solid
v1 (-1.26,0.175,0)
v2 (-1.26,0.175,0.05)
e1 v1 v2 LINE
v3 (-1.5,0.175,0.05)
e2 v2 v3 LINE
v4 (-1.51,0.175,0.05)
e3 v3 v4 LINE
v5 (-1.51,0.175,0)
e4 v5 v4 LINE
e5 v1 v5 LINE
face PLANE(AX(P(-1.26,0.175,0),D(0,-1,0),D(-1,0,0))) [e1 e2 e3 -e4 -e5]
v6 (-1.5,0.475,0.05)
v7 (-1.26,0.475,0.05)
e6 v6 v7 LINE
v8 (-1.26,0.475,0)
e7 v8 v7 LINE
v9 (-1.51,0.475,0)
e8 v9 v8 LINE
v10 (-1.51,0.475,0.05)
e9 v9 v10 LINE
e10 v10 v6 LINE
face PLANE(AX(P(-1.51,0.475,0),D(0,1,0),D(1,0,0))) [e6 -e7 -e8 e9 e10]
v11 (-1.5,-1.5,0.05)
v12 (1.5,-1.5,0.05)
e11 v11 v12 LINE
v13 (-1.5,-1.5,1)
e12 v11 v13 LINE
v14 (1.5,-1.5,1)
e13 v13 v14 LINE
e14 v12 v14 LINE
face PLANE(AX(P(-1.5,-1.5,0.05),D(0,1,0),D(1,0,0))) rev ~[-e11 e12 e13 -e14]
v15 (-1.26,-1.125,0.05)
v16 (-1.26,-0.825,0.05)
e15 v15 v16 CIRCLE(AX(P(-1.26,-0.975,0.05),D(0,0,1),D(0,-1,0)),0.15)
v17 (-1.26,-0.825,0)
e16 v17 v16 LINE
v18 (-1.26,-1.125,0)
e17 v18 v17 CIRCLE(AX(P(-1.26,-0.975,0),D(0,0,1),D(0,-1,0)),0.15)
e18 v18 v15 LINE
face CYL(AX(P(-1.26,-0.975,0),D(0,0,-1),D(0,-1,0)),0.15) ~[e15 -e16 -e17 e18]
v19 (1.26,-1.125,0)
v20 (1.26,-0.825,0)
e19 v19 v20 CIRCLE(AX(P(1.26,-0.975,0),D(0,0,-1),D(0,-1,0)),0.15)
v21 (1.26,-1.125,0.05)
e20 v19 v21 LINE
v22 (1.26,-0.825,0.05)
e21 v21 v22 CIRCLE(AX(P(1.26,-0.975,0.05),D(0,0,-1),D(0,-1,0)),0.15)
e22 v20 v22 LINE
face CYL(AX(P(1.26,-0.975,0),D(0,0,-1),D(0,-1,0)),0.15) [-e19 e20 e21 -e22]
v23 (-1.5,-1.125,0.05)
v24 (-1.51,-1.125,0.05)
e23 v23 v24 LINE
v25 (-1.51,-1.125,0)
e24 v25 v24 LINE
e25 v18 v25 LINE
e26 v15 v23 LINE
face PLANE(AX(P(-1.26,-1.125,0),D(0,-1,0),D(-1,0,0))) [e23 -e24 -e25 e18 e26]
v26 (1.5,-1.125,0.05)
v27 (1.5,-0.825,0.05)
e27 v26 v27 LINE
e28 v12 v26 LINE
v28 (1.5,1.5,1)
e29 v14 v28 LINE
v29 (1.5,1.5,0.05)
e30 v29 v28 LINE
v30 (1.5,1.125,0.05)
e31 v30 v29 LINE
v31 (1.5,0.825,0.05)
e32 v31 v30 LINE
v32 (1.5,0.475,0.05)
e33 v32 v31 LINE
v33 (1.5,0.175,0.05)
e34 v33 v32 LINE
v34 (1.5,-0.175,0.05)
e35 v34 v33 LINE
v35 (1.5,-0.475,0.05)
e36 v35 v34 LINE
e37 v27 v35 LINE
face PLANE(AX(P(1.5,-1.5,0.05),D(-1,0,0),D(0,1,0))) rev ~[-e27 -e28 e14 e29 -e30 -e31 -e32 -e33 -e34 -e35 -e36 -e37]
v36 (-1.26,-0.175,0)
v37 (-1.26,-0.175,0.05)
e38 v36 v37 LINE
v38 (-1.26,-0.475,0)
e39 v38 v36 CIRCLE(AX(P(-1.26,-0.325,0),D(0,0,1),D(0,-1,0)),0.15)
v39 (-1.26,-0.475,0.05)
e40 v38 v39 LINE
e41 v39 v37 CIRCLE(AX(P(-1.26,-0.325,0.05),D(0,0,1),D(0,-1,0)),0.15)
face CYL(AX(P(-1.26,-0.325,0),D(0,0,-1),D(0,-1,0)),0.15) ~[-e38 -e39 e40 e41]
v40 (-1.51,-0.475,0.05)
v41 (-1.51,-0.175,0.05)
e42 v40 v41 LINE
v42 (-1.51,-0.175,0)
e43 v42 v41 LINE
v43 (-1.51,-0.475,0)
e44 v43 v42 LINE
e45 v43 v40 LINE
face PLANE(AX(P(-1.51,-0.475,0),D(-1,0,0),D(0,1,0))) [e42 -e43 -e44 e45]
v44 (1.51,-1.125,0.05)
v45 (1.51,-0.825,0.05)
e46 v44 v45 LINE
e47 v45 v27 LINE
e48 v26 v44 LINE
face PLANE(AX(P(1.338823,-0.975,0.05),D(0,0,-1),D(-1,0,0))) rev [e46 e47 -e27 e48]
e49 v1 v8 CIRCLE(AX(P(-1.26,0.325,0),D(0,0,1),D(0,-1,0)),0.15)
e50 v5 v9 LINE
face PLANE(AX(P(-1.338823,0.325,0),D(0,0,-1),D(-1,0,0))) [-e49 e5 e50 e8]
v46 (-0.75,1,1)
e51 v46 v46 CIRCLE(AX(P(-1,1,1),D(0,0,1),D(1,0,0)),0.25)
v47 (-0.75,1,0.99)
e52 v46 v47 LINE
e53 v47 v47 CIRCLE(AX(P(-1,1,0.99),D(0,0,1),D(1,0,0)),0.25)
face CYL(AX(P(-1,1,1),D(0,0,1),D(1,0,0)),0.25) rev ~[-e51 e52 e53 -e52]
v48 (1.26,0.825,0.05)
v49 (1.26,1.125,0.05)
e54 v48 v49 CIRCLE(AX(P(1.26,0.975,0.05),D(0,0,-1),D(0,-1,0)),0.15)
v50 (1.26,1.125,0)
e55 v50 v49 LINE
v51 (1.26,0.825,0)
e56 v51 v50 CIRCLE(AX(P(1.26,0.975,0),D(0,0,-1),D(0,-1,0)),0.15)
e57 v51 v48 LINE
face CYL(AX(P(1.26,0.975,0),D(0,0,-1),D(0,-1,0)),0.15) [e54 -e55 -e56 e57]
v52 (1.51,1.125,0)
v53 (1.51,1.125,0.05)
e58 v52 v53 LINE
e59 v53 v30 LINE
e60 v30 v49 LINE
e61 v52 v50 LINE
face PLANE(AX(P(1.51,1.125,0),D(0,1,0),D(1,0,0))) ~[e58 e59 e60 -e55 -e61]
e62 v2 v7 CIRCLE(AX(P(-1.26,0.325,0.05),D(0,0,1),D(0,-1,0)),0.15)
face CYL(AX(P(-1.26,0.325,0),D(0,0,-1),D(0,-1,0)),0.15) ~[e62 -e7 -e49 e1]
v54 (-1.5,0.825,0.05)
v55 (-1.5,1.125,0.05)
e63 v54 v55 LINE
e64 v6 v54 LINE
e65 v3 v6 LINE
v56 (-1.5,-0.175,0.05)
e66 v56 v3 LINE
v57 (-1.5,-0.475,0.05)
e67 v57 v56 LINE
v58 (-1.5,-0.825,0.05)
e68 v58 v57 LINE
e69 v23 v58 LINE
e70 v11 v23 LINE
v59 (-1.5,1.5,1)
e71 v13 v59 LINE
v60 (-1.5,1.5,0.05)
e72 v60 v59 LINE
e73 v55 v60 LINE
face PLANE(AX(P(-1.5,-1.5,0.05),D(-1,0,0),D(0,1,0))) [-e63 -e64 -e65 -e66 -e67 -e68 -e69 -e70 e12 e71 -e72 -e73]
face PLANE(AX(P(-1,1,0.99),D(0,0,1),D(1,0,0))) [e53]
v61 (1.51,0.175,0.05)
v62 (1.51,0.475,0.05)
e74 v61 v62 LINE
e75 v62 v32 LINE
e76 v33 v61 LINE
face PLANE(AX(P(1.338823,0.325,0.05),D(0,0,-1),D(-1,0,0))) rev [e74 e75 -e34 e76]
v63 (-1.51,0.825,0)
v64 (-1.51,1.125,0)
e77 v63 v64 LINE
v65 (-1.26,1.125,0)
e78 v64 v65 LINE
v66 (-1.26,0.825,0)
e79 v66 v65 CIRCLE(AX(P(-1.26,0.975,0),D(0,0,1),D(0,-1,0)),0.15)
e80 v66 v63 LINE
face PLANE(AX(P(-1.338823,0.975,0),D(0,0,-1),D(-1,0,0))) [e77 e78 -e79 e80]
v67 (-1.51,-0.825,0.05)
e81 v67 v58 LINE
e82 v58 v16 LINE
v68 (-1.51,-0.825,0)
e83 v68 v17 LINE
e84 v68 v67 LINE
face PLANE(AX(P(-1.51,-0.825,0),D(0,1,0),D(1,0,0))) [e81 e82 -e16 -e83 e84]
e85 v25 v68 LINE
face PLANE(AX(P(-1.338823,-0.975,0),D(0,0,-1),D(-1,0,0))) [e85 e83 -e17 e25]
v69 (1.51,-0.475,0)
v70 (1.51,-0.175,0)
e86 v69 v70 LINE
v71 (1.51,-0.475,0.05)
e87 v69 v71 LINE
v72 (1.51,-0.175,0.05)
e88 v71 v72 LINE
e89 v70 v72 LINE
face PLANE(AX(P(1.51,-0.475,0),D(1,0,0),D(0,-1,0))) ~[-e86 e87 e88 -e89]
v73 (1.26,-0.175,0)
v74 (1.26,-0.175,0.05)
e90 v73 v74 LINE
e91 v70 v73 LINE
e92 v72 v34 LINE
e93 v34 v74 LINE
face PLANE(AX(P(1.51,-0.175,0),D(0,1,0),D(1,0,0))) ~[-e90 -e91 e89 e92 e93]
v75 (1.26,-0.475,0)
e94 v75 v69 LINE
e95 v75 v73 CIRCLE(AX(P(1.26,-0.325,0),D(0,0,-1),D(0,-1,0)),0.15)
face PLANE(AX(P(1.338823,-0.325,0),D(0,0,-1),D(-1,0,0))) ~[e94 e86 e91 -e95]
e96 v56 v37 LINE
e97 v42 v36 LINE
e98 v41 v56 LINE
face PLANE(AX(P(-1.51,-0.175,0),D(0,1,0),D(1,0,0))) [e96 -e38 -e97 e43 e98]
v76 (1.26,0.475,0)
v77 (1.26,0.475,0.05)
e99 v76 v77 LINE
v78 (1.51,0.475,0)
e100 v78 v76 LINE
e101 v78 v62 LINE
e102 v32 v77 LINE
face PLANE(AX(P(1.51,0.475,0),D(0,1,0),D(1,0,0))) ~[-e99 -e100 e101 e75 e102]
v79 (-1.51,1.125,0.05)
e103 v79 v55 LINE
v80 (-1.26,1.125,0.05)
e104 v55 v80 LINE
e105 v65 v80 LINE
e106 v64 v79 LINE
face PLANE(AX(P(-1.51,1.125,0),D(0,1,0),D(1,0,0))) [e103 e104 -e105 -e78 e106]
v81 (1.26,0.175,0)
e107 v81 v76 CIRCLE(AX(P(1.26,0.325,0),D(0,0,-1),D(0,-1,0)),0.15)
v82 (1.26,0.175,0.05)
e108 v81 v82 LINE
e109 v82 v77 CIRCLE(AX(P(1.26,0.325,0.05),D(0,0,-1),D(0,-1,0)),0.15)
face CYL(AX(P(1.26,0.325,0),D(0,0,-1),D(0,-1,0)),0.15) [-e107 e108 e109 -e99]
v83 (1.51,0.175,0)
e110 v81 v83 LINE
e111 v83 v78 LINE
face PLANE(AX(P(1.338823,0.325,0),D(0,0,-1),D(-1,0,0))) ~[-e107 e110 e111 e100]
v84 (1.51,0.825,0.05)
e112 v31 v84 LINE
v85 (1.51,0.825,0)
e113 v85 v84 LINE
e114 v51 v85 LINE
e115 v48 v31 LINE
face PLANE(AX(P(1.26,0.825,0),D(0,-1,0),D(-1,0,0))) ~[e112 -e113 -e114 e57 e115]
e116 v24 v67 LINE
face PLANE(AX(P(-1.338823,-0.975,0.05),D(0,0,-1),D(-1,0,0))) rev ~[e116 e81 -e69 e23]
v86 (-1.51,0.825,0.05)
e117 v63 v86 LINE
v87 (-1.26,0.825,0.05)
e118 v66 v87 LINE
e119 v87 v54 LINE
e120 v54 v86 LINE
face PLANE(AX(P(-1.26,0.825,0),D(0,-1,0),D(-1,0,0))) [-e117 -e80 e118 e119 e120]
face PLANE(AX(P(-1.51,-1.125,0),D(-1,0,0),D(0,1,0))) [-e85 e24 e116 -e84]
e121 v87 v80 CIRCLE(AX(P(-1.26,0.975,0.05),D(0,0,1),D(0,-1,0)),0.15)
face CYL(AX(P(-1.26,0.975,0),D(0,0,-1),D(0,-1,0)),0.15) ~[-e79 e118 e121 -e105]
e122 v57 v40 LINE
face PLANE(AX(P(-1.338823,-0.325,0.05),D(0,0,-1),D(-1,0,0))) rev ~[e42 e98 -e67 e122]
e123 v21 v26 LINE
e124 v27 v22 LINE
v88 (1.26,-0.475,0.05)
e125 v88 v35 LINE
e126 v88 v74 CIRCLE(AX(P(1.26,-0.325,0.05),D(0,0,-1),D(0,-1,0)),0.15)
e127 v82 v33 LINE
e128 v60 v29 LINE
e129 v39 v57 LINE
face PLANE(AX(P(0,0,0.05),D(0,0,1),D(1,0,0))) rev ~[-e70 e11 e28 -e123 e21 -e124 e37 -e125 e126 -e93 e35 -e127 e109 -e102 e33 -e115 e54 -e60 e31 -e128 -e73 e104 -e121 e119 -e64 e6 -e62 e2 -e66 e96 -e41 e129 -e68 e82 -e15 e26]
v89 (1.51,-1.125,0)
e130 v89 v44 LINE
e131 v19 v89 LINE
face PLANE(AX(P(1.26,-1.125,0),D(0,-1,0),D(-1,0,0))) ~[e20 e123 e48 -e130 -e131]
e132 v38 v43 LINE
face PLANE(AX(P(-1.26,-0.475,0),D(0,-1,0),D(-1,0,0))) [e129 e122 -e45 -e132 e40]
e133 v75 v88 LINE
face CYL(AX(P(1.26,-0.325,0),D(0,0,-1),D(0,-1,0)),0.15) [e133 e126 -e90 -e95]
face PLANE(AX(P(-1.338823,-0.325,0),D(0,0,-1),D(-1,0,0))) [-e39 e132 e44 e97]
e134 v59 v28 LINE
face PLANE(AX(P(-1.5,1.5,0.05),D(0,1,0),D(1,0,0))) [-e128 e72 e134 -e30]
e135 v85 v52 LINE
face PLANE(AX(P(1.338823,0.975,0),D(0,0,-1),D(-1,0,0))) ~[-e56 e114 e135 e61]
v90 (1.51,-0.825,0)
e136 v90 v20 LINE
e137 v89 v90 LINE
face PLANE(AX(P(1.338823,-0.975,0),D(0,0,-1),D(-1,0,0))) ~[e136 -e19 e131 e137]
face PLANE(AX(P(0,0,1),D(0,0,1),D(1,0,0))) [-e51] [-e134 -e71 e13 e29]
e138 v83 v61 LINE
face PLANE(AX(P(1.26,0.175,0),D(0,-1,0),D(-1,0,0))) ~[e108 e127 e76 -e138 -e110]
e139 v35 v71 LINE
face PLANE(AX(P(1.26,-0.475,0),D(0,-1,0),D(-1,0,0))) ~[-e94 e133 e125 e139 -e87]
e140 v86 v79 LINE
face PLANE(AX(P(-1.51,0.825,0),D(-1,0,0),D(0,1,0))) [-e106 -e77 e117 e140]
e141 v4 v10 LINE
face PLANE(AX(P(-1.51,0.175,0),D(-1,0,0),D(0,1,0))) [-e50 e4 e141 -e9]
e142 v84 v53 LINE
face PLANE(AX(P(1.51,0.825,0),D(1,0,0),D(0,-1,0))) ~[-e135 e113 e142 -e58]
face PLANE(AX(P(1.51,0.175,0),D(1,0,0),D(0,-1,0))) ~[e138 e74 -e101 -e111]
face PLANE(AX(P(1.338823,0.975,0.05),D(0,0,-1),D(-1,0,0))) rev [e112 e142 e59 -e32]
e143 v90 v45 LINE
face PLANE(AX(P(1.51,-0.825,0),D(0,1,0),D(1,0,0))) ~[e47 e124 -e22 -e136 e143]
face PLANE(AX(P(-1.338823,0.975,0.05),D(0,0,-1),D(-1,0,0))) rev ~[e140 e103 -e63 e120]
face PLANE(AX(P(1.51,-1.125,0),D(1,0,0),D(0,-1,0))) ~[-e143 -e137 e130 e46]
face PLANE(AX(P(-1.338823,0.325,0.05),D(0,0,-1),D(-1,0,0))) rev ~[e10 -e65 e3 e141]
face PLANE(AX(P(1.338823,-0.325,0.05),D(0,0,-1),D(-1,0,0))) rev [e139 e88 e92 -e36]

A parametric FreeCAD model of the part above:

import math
import FreeCAD as App
import Part
import Sketcher

V = App.Vector
Q = App.Units.Quantity


def add_polygon(sketch, points):
    """Adds a closed chain of lines whose ends are joined by coincident constraints."""
    first, n = sketch.GeometryCount, len(points)
    for a, b in zip(points, points[1:] + points[:1]):
        sketch.addGeometry(Part.LineSegment(App.Vector(*a, 0), App.Vector(*b, 0)), False)
    for i in range(n):
        sketch.addConstraint(Sketcher.Constraint("Coincident", first + i, 2, first + (i + 1) % n, 1))

doc = App.newDocument("Part")
body = doc.addObject("PartDesign::Body", "Body")

sketch1 = body.newObject("Sketcher::SketchObject", "Sketch")
sketch1.AttachmentSupport = (doc.getObject("XY_Plane"), [""])
sketch1.MapMode = "FlatFace"
sketch1.addGeometry(Part.LineSegment(V(-1.26, 1.12, 0), V(-1.51, 1.12, 0)), False)
sketch1.addGeometry(Part.LineSegment(V(-1.51, 1.12, 0), V(-1.51, 0.82, 0)), False)
sketch1.addGeometry(Part.LineSegment(V(-1.51, 0.82, 0), V(-1.26, 0.82, 0)), False)
sketch1.addGeometry(Part.ArcOfCircle(Part.Circle(V(-1.26, 0.97, 0), V(0, 0, 1), 0.15), math.radians(-90), math.radians(90)), False)
sketch1.addConstraint(Sketcher.Constraint("Coincident", 0, 2, 1, 1))
sketch1.addConstraint(Sketcher.Constraint("Coincident", 1, 2, 2, 1))
sketch1.addConstraint(Sketcher.Constraint("Tangent", 2, 2, 3, 1))
sketch1.addConstraint(Sketcher.Constraint("Tangent", 3, 2, 0, 1))
sketch1.addConstraint(Sketcher.Constraint("Horizontal", 0))
sketch1.addConstraint(Sketcher.Constraint("Vertical", 1))
sketch1.addConstraint(Sketcher.Constraint("Horizontal", 2))
sketch1.addConstraint(Sketcher.Constraint("Radius", 3, Q("0.15 mm")))
sketch1.addConstraint(Sketcher.Constraint("DistanceX", 0, 2, 0, 1, Q("0.25 mm")))
sketch1.addConstraint(Sketcher.Constraint("DistanceX", 3, 3, -1, 1, Q("1.26 mm")))
sketch1.addConstraint(Sketcher.Constraint("DistanceY", -1, 1, 3, 3, Q("0.975 mm")))
pad1 = body.newObject("PartDesign::Pad", "Pad")
pad1.Profile = sketch1
pad1.Length = 0.05

sketch2 = body.newObject("Sketcher::SketchObject", "Sketch001")
sketch2.AttachmentSupport = (doc.getObject("XY_Plane"), [""])
sketch2.MapMode = "FlatFace"
sketch2.AttachmentOffset = App.Placement(V(0, 0, 0.05), App.Rotation())
add_polygon(sketch2, [(-1.5, 1.5), (-1.5, -1.5), (1.5, -1.5), (1.5, 1.5)])
sketch2.addConstraint(Sketcher.Constraint("Vertical", 0))
sketch2.addConstraint(Sketcher.Constraint("Horizontal", 1))
sketch2.addConstraint(Sketcher.Constraint("Vertical", 2))
sketch2.addConstraint(Sketcher.Constraint("Horizontal", 3))
sketch2.addConstraint(Sketcher.Constraint("Symmetric", 0, 2, 2, 2, -1, 1))
sketch2.addConstraint(Sketcher.Constraint("Equal", 3, 0))
sketch2.addConstraint(Sketcher.Constraint("DistanceX", 1, 1, 1, 2, Q("3 mm")))
pad2 = body.newObject("PartDesign::Pad", "Pad001")
pad2.Profile = sketch2
pad2.Length = 0.95

sketch3 = body.newObject("Sketcher::SketchObject", "Sketch002")
sketch3.AttachmentSupport = (doc.getObject("XY_Plane"), [""])
sketch3.MapMode = "FlatFace"
sketch3.addGeometry(Part.LineSegment(V(-1.26, 0.47, 0), V(-1.51, 0.47, 0)), False)
sketch3.addGeometry(Part.LineSegment(V(-1.51, 0.47, 0), V(-1.51, 0.17, 0)), False)
sketch3.addGeometry(Part.LineSegment(V(-1.51, 0.17, 0), V(-1.26, 0.17, 0)), False)
sketch3.addGeometry(Part.ArcOfCircle(Part.Circle(V(-1.26, 0.33, 0), V(0, 0, 1), 0.15), math.radians(-90), math.radians(90)), False)
sketch3.addConstraint(Sketcher.Constraint("Coincident", 0, 2, 1, 1))
sketch3.addConstraint(Sketcher.Constraint("Coincident", 1, 2, 2, 1))
sketch3.addConstraint(Sketcher.Constraint("Tangent", 2, 2, 3, 1))
sketch3.addConstraint(Sketcher.Constraint("Tangent", 3, 2, 0, 1))
sketch3.addConstraint(Sketcher.Constraint("Horizontal", 0))
sketch3.addConstraint(Sketcher.Constraint("Vertical", 1))
sketch3.addConstraint(Sketcher.Constraint("Horizontal", 2))
sketch3.addConstraint(Sketcher.Constraint("Radius", 3, Q("0.15 mm")))
sketch3.addConstraint(Sketcher.Constraint("DistanceX", 0, 2, 0, 1, Q("0.25 mm")))
sketch3.addConstraint(Sketcher.Constraint("DistanceX", 3, 3, -1, 1, Q("1.26 mm")))
sketch3.addConstraint(Sketcher.Constraint("DistanceY", -1, 1, 3, 3, Q("0.325 mm")))
pad3 = body.newObject("PartDesign::Pad", "Pad002")
pad3.Profile = sketch3
pad3.Length = 0.05

sketch4 = body.newObject("Sketcher::SketchObject", "Sketch003")
sketch4.AttachmentSupport = (doc.getObject("XY_Plane"), [""])
sketch4.MapMode = "FlatFace"
sketch4.addGeometry(Part.LineSegment(V(-1.26, -0.17, 0), V(-1.51, -0.17, 0)), False)
sketch4.addGeometry(Part.LineSegment(V(-1.51, -0.17, 0), V(-1.51, -0.47, 0)), False)
sketch4.addGeometry(Part.LineSegment(V(-1.51, -0.47, 0), V(-1.26, -0.47, 0)), False)
sketch4.addGeometry(Part.ArcOfCircle(Part.Circle(V(-1.26, -0.33, 0), V(0, 0, 1), 0.15), math.radians(-90), math.radians(90)), False)
sketch4.addConstraint(Sketcher.Constraint("Coincident", 0, 2, 1, 1))
sketch4.addConstraint(Sketcher.Constraint("Coincident", 1, 2, 2, 1))
sketch4.addConstraint(Sketcher.Constraint("Tangent", 2, 2, 3, 1))
sketch4.addConstraint(Sketcher.Constraint("Tangent", 3, 2, 0, 1))
sketch4.addConstraint(Sketcher.Constraint("Horizontal", 0))
sketch4.addConstraint(Sketcher.Constraint("Vertical", 1))
sketch4.addConstraint(Sketcher.Constraint("Horizontal", 2))
sketch4.addConstraint(Sketcher.Constraint("Radius", 3, Q("0.15 mm")))
sketch4.addConstraint(Sketcher.Constraint("DistanceX", 0, 2, 0, 1, Q("0.25 mm")))
sketch4.addConstraint(Sketcher.Constraint("DistanceX", 3, 3, -1, 1, Q("1.26 mm")))
sketch4.addConstraint(Sketcher.Constraint("DistanceY", 3, 3, -1, 1, Q("0.325 mm")))
pad4 = body.newObject("PartDesign::Pad", "Pad003")
pad4.Profile = sketch4
pad4.Length = 0.05

sketch5 = body.newObject("Sketcher::SketchObject", "Sketch004")
sketch5.AttachmentSupport = (doc.getObject("XY_Plane"), [""])
sketch5.MapMode = "FlatFace"
sketch5.addGeometry(Part.LineSegment(V(-1.26, -0.82, 0), V(-1.51, -0.82, 0)), False)
sketch5.addGeometry(Part.LineSegment(V(-1.51, -0.82, 0), V(-1.51, -1.12, 0)), False)
sketch5.addGeometry(Part.LineSegment(V(-1.51, -1.12, 0), V(-1.26, -1.12, 0)), False)
sketch5.addGeometry(Part.ArcOfCircle(Part.Circle(V(-1.26, -0.97, 0), V(0, 0, 1), 0.15), math.radians(-90), math.radians(90)), False)
sketch5.addConstraint(Sketcher.Constraint("Coincident", 0, 2, 1, 1))
sketch5.addConstraint(Sketcher.Constraint("Coincident", 1, 2, 2, 1))
sketch5.addConstraint(Sketcher.Constraint("Tangent", 2, 2, 3, 1))
sketch5.addConstraint(Sketcher.Constraint("Tangent", 3, 2, 0, 1))
sketch5.addConstraint(Sketcher.Constraint("Horizontal", 0))
sketch5.addConstraint(Sketcher.Constraint("Vertical", 1))
sketch5.addConstraint(Sketcher.Constraint("Horizontal", 2))
sketch5.addConstraint(Sketcher.Constraint("Radius", 3, Q("0.15 mm")))
sketch5.addConstraint(Sketcher.Constraint("DistanceX", 0, 2, 0, 1, Q("0.25 mm")))
sketch5.addConstraint(Sketcher.Constraint("DistanceX", 3, 3, -1, 1, Q("1.26 mm")))
sketch5.addConstraint(Sketcher.Constraint("DistanceY", 3, 3, -1, 1, Q("0.975 mm")))
pad5 = body.newObject("PartDesign::Pad", "Pad004")
pad5.Profile = sketch5
pad5.Length = 0.05
doc.recompute()

mirrored = body.newObject("PartDesign::Mirrored", "Mirrored")
mirrored.Originals = [pad1, pad3, pad4, pad5]
mirrored.MirrorPlane = (doc.getObject("YZ_Plane"), [""])
body.Tip = mirrored

sketch6 = body.newObject("Sketcher::SketchObject", "Sketch005")
sketch6.AttachmentSupport = (doc.getObject("XY_Plane"), [""])
sketch6.MapMode = "FlatFace"
sketch6.AttachmentOffset = App.Placement(V(0, 0, 1), App.Rotation())
sketch6.addGeometry(Part.Circle(V(-1, 1, 0), V(0, 0, 1), 0.25), False)
sketch6.addConstraint(Sketcher.Constraint("Diameter", 0, Q("0.5 mm")))
sketch6.addConstraint(Sketcher.Constraint("DistanceX", 0, 3, -1, 1, Q("1 mm")))
sketch6.addConstraint(Sketcher.Constraint("DistanceY", -1, 1, 0, 3, Q("1 mm")))
pocket1 = body.newObject("PartDesign::Pocket", "Pocket")
pocket1.Profile = sketch6
pocket1.Length = 0.01

doc.recompute()
